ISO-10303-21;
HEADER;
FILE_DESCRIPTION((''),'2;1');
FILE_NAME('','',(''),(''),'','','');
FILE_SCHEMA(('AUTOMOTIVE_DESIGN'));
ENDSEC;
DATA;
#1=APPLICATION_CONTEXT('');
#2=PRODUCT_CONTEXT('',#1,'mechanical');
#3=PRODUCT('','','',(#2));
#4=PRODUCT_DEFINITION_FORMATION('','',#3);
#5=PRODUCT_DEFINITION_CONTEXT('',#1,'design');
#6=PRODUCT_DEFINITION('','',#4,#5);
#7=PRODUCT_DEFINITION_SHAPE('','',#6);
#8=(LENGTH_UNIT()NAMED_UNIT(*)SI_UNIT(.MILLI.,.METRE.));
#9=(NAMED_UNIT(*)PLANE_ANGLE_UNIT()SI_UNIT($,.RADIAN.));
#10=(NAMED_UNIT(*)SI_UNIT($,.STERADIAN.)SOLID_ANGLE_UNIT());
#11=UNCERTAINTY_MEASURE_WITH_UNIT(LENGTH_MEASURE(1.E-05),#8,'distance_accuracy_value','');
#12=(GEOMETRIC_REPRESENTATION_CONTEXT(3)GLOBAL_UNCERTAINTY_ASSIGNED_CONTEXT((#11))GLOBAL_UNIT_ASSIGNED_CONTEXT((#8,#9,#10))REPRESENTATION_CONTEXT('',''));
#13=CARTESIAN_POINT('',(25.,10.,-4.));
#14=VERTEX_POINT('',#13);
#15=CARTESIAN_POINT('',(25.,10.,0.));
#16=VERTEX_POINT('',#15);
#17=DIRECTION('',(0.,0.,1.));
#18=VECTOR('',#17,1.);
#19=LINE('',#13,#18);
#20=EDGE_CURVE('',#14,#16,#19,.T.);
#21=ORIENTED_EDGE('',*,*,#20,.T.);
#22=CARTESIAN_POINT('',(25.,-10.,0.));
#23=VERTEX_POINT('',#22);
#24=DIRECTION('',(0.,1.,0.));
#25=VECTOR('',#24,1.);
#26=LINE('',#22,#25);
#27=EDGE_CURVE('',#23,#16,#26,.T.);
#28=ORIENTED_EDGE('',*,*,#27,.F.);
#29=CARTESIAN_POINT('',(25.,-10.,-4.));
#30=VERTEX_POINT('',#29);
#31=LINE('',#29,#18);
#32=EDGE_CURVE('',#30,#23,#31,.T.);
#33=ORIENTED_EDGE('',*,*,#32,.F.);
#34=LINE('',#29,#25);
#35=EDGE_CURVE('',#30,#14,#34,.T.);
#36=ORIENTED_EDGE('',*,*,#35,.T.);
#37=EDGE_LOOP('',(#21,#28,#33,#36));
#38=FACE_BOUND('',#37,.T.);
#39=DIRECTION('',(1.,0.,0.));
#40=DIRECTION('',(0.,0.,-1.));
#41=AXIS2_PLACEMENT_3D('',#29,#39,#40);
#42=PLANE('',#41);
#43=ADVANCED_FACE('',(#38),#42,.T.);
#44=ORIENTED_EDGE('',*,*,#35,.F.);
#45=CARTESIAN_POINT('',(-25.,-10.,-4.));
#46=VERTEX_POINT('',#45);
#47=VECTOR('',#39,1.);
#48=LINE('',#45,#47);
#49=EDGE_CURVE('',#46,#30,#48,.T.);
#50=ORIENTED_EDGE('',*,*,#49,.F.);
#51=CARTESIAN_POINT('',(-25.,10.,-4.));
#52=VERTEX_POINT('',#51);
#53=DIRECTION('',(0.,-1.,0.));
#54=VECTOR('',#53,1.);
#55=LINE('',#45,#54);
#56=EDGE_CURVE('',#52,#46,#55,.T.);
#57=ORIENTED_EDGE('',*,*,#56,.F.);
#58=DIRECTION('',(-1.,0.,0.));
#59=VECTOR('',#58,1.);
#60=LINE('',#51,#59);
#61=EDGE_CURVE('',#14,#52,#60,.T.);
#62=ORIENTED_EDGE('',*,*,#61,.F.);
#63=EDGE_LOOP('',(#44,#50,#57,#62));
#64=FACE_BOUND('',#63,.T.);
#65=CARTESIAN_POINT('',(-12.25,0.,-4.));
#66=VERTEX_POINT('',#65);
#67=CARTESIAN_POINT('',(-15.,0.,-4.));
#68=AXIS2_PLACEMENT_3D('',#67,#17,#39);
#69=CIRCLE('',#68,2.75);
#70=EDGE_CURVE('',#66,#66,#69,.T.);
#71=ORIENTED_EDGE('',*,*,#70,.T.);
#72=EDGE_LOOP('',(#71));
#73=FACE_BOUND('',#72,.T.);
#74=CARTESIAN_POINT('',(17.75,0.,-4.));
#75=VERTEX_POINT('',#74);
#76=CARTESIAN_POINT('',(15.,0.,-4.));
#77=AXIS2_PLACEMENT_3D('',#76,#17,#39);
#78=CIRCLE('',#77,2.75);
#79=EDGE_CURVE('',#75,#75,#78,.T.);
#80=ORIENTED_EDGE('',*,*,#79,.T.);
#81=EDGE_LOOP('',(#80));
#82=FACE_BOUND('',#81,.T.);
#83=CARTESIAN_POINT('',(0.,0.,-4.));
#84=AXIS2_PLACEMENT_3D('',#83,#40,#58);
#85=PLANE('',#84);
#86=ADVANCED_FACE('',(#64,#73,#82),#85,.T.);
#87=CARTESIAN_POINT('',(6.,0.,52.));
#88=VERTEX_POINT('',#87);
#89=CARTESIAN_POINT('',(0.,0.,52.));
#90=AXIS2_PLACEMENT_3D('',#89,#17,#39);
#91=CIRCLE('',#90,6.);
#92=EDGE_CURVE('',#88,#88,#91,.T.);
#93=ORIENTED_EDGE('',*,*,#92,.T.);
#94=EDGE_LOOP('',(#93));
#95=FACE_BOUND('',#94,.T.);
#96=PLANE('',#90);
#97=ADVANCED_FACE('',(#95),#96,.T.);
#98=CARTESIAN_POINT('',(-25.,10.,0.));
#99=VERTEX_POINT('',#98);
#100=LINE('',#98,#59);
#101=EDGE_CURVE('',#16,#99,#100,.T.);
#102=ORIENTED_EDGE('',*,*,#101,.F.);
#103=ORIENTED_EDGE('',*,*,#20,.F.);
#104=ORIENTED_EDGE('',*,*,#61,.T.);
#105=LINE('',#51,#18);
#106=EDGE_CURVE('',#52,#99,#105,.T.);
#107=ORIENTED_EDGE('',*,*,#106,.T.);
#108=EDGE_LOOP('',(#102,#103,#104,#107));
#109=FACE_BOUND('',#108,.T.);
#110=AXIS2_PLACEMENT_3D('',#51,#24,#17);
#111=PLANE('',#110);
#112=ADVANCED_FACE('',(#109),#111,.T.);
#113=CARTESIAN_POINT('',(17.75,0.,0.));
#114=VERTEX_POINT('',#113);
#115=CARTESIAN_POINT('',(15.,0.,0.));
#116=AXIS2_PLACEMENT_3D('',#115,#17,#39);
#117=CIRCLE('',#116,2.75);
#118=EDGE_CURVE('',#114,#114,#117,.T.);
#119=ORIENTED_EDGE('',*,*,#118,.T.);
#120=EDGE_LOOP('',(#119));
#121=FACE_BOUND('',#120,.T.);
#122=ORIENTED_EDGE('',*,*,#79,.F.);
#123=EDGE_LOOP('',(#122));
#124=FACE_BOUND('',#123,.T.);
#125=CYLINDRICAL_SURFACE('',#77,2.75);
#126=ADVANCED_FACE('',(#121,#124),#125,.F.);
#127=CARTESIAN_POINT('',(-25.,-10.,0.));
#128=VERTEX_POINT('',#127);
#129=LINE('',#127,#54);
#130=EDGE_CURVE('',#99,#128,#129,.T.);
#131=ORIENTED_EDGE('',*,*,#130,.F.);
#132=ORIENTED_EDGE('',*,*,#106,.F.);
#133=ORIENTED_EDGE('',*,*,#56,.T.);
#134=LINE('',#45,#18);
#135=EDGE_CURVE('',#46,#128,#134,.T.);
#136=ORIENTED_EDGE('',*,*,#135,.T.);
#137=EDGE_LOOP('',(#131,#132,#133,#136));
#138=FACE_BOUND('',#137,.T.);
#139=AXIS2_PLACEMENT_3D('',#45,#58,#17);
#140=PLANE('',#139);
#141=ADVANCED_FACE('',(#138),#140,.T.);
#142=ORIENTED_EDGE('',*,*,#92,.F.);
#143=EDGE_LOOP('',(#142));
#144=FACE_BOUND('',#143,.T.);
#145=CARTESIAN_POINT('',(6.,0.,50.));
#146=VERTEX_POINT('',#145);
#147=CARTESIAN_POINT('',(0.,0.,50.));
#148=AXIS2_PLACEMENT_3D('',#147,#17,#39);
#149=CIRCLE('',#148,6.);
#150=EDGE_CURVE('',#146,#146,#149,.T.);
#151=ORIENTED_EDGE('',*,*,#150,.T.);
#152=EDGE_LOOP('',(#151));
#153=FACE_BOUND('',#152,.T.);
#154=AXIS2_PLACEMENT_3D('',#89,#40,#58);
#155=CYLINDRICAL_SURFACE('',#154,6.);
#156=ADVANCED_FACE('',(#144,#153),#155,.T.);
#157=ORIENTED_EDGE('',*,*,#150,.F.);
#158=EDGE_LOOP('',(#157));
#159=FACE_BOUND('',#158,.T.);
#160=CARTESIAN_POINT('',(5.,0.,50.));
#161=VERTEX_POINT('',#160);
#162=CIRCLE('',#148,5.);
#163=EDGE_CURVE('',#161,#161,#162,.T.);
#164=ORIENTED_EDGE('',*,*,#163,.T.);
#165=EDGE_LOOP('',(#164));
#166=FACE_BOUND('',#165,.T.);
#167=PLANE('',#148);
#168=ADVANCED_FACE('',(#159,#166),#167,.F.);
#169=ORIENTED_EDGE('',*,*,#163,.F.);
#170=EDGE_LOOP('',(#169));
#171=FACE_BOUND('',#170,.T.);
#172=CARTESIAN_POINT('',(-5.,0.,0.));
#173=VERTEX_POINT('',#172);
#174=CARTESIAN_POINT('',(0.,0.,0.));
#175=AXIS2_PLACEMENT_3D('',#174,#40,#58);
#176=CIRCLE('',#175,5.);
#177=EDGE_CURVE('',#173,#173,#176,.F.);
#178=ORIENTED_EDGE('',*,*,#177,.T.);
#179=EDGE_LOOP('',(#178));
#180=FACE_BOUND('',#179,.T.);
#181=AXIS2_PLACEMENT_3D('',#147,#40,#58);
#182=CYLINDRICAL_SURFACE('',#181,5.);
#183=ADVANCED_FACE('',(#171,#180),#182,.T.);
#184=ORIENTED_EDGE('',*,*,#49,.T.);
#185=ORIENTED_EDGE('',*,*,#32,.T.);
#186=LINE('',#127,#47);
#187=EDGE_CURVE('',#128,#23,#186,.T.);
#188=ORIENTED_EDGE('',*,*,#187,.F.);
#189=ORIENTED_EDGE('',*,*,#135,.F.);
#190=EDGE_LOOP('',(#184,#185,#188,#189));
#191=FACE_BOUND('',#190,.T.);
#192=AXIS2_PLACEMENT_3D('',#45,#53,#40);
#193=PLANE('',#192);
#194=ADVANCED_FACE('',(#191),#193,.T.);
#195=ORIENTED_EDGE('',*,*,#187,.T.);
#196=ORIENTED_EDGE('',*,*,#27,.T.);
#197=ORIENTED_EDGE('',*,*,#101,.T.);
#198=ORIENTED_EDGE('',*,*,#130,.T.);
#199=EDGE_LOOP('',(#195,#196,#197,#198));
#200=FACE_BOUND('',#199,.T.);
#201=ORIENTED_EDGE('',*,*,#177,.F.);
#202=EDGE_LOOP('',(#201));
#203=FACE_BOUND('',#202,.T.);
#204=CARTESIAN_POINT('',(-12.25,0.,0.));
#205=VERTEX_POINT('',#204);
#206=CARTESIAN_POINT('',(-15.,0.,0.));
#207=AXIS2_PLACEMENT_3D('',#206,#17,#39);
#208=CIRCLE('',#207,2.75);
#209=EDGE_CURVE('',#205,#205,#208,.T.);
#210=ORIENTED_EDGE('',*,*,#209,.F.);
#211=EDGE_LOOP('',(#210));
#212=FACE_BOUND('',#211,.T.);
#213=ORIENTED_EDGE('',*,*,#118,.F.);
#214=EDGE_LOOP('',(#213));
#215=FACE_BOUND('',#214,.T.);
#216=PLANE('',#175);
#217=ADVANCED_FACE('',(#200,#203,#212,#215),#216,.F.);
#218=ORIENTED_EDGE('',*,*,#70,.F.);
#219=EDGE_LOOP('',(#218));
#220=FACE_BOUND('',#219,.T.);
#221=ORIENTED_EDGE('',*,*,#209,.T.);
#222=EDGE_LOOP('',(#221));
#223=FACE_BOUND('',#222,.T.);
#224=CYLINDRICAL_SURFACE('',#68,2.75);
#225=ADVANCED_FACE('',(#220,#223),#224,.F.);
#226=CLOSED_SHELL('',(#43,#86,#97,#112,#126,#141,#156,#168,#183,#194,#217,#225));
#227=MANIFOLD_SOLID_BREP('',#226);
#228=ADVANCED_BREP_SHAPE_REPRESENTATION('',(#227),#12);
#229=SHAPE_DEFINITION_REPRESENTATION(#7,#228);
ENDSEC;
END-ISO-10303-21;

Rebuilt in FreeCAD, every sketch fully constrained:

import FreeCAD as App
import Part
import Sketcher


def add_polygon(sketch, points):
    """Adds a closed chain of lines whose ends are joined by coincident constraints."""
    first, n = sketch.GeometryCount, len(points)
    for a, b in zip(points, points[1:] + points[:1]):
        sketch.addGeometry(Part.LineSegment(App.Vector(*a, 0), App.Vector(*b, 0)), False)
    for i in range(n):
        sketch.addConstraint(Sketcher.Constraint("Coincident", first + i, 2, first + (i + 1) % n, 1))

doc = App.newDocument("Part")
body = doc.addObject("PartDesign::Body", "Body")

# Sketch on XY plane
sketch1 = body.newObject("Sketcher::SketchObject", "Sketch")
sketch1.AttachmentSupport = (doc.getObject("XY_Plane"), [""])
sketch1.MapMode = "FlatFace"
add_polygon(sketch1, [(-25, 10), (-25, -10), (25, -10), (25, 10)])  # lines 0-3
sketch1.addGeometry(Part.Circle(App.Vector(-15, 0, 0), App.Vector(0, 0, 1), 2.8), False)  # 4
sketch1.addGeometry(Part.Circle(App.Vector(15, 0, 0), App.Vector(0, 0, 1), 2.8), False)  # 5
sketch1.addConstraint(Sketcher.Constraint("Vertical", 0))
sketch1.addConstraint(Sketcher.Constraint("Horizontal", 1))
sketch1.addConstraint(Sketcher.Constraint("Vertical", 2))
sketch1.addConstraint(Sketcher.Constraint("Horizontal", 3))
sketch1.addConstraint(Sketcher.Constraint("Equal", 4, 5))
sketch1.addConstraint(Sketcher.Constraint("Symmetric", 4, 3, 5, 3, -1, 1))
sketch1.addConstraint(Sketcher.Constraint("Symmetric", 0, 2, 2, 2, -1, 1))
sketch1.addConstraint(Sketcher.Constraint("PointOnObject", 4, 3, -1))
sketch1.addConstraint(Sketcher.Constraint("Diameter", 4, 5.5))
sketch1.addConstraint(Sketcher.Constraint("DistanceX", 1, 1, 1, 2, 50.0))
sketch1.addConstraint(Sketcher.Constraint("DistanceY", 0, 2, 0, 1, 20.0))
sketch1.addConstraint(Sketcher.Constraint("DistanceX", 4, 3, -1, 1, 15.0))
pad1 = body.newObject("PartDesign::Pad", "Pad")
pad1.Profile = sketch1
pad1.Length = 4
pad1.Reversed = True

# Sketch on XY plane
sketch2 = body.newObject("Sketcher::SketchObject", "Sketch001")
sketch2.AttachmentSupport = (doc.getObject("XY_Plane"), [""])
sketch2.MapMode = "FlatFace"
sketch2.addGeometry(Part.Circle(App.Vector(0, 0, 0), App.Vector(0, 0, 1), 5), False)
sketch2.addConstraint(Sketcher.Constraint("Coincident", 0, 3, -1, 1))
sketch2.addConstraint(Sketcher.Constraint("Diameter", 0, 10.0))
pad2 = body.newObject("PartDesign::Pad", "Pad001")
pad2.Profile = sketch2
pad2.Length = 50

# Sketch on XY plane
sketch3 = body.newObject("Sketcher::SketchObject", "Sketch002")
sketch3.AttachmentSupport = (doc.getObject("XY_Plane"), [""])
sketch3.MapMode = "FlatFace"
sketch3.AttachmentOffset = App.Placement(App.Vector(0, 0, 50), App.Rotation())
sketch3.addGeometry(Part.Circle(App.Vector(0, 0, 0), App.Vector(0, 0, 1), 6), False)
sketch3.addConstraint(Sketcher.Constraint("Coincident", 0, 3, -1, 1))
sketch3.addConstraint(Sketcher.Constraint("Diameter", 0, 12.0))
pad3 = body.newObject("PartDesign::Pad", "Pad002")
pad3.Profile = sketch3
pad3.Length = 2

doc.recompute()
